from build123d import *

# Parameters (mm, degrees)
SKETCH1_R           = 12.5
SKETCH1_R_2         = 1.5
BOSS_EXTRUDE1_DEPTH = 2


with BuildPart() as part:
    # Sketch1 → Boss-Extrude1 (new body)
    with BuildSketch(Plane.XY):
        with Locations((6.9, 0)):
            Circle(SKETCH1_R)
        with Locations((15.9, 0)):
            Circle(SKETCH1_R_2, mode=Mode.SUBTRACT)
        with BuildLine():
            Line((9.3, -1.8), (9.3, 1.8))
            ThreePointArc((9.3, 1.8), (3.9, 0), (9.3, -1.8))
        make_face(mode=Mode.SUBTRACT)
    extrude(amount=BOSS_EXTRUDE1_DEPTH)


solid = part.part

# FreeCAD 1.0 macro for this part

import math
import FreeCAD as App
import Part
import Sketcher
from FreeCAD import Vector
Q = App.Units.Quantity

doc = App.newDocument("Part")
body = doc.addObject("PartDesign::Body", "Body")

sketch1 = doc.addObject("Sketcher::SketchObject", "Sketch")
body.addObject(sketch1)
sketch1.AttachmentSupport = (doc.XY_Plane, [""])
sketch1.MapMode = "FlatFace"
sketch1.addGeometry(Part.Circle(Vector(6.9, 0, 0), Vector(0, 0, 1), 12.5), False)
sketch1.addGeometry(Part.LineSegment(Vector(9.3, 1.8, 0), Vector(9.3, -1.8, 0)), False)
sketch1.addGeometry(Part.ArcOfCircle(Part.Circle(Vector(6.9, 0, 0), Vector(0, 0, 1), 3), math.radians(37), math.radians(323)), False)
sketch1.addGeometry(Part.Circle(Vector(15.9, 0, 0), Vector(0, 0, 1), 1.5), False)
sketch1.addConstraint(Sketcher.Constraint("Coincident", 1, 1, 2, 1))
sketch1.addConstraint(Sketcher.Constraint("Coincident", 2, 2, 1, 2))
sketch1.addConstraint(Sketcher.Constraint("Vertical", 1))
sketch1.addConstraint(Sketcher.Constraint("Coincident", 2, 3, 0, 3))
sketch1.addConstraint(Sketcher.Constraint("PointOnObject", 0, 3, -1))
sketch1.addConstraint(Sketcher.Constraint("PointOnObject", 3, 3, -1))
sketch1.addConstraint(Sketcher.Constraint("Diameter", 0, Q("25 mm")))
sketch1.addConstraint(Sketcher.Constraint("Diameter", 3, Q("3 mm")))
sketch1.addConstraint(Sketcher.Constraint("Radius", 2, Q("3 mm")))
sketch1.addConstraint(Sketcher.Constraint("DistanceY", 1, 2, 1, 1, Q("3.6 mm")))
sketch1.addConstraint(Sketcher.Constraint("DistanceX", 0, 3, 3, 3, Q("9 mm")))
sketch1.addConstraint(Sketcher.Constraint("DistanceX", -1, 1, 0, 3, Q("6.9 mm")))
pad1 = doc.addObject("PartDesign::Pad", "Pad")
body.addObject(pad1)
pad1.Profile = sketch1
pad1.Length = 2

doc.recompute()
